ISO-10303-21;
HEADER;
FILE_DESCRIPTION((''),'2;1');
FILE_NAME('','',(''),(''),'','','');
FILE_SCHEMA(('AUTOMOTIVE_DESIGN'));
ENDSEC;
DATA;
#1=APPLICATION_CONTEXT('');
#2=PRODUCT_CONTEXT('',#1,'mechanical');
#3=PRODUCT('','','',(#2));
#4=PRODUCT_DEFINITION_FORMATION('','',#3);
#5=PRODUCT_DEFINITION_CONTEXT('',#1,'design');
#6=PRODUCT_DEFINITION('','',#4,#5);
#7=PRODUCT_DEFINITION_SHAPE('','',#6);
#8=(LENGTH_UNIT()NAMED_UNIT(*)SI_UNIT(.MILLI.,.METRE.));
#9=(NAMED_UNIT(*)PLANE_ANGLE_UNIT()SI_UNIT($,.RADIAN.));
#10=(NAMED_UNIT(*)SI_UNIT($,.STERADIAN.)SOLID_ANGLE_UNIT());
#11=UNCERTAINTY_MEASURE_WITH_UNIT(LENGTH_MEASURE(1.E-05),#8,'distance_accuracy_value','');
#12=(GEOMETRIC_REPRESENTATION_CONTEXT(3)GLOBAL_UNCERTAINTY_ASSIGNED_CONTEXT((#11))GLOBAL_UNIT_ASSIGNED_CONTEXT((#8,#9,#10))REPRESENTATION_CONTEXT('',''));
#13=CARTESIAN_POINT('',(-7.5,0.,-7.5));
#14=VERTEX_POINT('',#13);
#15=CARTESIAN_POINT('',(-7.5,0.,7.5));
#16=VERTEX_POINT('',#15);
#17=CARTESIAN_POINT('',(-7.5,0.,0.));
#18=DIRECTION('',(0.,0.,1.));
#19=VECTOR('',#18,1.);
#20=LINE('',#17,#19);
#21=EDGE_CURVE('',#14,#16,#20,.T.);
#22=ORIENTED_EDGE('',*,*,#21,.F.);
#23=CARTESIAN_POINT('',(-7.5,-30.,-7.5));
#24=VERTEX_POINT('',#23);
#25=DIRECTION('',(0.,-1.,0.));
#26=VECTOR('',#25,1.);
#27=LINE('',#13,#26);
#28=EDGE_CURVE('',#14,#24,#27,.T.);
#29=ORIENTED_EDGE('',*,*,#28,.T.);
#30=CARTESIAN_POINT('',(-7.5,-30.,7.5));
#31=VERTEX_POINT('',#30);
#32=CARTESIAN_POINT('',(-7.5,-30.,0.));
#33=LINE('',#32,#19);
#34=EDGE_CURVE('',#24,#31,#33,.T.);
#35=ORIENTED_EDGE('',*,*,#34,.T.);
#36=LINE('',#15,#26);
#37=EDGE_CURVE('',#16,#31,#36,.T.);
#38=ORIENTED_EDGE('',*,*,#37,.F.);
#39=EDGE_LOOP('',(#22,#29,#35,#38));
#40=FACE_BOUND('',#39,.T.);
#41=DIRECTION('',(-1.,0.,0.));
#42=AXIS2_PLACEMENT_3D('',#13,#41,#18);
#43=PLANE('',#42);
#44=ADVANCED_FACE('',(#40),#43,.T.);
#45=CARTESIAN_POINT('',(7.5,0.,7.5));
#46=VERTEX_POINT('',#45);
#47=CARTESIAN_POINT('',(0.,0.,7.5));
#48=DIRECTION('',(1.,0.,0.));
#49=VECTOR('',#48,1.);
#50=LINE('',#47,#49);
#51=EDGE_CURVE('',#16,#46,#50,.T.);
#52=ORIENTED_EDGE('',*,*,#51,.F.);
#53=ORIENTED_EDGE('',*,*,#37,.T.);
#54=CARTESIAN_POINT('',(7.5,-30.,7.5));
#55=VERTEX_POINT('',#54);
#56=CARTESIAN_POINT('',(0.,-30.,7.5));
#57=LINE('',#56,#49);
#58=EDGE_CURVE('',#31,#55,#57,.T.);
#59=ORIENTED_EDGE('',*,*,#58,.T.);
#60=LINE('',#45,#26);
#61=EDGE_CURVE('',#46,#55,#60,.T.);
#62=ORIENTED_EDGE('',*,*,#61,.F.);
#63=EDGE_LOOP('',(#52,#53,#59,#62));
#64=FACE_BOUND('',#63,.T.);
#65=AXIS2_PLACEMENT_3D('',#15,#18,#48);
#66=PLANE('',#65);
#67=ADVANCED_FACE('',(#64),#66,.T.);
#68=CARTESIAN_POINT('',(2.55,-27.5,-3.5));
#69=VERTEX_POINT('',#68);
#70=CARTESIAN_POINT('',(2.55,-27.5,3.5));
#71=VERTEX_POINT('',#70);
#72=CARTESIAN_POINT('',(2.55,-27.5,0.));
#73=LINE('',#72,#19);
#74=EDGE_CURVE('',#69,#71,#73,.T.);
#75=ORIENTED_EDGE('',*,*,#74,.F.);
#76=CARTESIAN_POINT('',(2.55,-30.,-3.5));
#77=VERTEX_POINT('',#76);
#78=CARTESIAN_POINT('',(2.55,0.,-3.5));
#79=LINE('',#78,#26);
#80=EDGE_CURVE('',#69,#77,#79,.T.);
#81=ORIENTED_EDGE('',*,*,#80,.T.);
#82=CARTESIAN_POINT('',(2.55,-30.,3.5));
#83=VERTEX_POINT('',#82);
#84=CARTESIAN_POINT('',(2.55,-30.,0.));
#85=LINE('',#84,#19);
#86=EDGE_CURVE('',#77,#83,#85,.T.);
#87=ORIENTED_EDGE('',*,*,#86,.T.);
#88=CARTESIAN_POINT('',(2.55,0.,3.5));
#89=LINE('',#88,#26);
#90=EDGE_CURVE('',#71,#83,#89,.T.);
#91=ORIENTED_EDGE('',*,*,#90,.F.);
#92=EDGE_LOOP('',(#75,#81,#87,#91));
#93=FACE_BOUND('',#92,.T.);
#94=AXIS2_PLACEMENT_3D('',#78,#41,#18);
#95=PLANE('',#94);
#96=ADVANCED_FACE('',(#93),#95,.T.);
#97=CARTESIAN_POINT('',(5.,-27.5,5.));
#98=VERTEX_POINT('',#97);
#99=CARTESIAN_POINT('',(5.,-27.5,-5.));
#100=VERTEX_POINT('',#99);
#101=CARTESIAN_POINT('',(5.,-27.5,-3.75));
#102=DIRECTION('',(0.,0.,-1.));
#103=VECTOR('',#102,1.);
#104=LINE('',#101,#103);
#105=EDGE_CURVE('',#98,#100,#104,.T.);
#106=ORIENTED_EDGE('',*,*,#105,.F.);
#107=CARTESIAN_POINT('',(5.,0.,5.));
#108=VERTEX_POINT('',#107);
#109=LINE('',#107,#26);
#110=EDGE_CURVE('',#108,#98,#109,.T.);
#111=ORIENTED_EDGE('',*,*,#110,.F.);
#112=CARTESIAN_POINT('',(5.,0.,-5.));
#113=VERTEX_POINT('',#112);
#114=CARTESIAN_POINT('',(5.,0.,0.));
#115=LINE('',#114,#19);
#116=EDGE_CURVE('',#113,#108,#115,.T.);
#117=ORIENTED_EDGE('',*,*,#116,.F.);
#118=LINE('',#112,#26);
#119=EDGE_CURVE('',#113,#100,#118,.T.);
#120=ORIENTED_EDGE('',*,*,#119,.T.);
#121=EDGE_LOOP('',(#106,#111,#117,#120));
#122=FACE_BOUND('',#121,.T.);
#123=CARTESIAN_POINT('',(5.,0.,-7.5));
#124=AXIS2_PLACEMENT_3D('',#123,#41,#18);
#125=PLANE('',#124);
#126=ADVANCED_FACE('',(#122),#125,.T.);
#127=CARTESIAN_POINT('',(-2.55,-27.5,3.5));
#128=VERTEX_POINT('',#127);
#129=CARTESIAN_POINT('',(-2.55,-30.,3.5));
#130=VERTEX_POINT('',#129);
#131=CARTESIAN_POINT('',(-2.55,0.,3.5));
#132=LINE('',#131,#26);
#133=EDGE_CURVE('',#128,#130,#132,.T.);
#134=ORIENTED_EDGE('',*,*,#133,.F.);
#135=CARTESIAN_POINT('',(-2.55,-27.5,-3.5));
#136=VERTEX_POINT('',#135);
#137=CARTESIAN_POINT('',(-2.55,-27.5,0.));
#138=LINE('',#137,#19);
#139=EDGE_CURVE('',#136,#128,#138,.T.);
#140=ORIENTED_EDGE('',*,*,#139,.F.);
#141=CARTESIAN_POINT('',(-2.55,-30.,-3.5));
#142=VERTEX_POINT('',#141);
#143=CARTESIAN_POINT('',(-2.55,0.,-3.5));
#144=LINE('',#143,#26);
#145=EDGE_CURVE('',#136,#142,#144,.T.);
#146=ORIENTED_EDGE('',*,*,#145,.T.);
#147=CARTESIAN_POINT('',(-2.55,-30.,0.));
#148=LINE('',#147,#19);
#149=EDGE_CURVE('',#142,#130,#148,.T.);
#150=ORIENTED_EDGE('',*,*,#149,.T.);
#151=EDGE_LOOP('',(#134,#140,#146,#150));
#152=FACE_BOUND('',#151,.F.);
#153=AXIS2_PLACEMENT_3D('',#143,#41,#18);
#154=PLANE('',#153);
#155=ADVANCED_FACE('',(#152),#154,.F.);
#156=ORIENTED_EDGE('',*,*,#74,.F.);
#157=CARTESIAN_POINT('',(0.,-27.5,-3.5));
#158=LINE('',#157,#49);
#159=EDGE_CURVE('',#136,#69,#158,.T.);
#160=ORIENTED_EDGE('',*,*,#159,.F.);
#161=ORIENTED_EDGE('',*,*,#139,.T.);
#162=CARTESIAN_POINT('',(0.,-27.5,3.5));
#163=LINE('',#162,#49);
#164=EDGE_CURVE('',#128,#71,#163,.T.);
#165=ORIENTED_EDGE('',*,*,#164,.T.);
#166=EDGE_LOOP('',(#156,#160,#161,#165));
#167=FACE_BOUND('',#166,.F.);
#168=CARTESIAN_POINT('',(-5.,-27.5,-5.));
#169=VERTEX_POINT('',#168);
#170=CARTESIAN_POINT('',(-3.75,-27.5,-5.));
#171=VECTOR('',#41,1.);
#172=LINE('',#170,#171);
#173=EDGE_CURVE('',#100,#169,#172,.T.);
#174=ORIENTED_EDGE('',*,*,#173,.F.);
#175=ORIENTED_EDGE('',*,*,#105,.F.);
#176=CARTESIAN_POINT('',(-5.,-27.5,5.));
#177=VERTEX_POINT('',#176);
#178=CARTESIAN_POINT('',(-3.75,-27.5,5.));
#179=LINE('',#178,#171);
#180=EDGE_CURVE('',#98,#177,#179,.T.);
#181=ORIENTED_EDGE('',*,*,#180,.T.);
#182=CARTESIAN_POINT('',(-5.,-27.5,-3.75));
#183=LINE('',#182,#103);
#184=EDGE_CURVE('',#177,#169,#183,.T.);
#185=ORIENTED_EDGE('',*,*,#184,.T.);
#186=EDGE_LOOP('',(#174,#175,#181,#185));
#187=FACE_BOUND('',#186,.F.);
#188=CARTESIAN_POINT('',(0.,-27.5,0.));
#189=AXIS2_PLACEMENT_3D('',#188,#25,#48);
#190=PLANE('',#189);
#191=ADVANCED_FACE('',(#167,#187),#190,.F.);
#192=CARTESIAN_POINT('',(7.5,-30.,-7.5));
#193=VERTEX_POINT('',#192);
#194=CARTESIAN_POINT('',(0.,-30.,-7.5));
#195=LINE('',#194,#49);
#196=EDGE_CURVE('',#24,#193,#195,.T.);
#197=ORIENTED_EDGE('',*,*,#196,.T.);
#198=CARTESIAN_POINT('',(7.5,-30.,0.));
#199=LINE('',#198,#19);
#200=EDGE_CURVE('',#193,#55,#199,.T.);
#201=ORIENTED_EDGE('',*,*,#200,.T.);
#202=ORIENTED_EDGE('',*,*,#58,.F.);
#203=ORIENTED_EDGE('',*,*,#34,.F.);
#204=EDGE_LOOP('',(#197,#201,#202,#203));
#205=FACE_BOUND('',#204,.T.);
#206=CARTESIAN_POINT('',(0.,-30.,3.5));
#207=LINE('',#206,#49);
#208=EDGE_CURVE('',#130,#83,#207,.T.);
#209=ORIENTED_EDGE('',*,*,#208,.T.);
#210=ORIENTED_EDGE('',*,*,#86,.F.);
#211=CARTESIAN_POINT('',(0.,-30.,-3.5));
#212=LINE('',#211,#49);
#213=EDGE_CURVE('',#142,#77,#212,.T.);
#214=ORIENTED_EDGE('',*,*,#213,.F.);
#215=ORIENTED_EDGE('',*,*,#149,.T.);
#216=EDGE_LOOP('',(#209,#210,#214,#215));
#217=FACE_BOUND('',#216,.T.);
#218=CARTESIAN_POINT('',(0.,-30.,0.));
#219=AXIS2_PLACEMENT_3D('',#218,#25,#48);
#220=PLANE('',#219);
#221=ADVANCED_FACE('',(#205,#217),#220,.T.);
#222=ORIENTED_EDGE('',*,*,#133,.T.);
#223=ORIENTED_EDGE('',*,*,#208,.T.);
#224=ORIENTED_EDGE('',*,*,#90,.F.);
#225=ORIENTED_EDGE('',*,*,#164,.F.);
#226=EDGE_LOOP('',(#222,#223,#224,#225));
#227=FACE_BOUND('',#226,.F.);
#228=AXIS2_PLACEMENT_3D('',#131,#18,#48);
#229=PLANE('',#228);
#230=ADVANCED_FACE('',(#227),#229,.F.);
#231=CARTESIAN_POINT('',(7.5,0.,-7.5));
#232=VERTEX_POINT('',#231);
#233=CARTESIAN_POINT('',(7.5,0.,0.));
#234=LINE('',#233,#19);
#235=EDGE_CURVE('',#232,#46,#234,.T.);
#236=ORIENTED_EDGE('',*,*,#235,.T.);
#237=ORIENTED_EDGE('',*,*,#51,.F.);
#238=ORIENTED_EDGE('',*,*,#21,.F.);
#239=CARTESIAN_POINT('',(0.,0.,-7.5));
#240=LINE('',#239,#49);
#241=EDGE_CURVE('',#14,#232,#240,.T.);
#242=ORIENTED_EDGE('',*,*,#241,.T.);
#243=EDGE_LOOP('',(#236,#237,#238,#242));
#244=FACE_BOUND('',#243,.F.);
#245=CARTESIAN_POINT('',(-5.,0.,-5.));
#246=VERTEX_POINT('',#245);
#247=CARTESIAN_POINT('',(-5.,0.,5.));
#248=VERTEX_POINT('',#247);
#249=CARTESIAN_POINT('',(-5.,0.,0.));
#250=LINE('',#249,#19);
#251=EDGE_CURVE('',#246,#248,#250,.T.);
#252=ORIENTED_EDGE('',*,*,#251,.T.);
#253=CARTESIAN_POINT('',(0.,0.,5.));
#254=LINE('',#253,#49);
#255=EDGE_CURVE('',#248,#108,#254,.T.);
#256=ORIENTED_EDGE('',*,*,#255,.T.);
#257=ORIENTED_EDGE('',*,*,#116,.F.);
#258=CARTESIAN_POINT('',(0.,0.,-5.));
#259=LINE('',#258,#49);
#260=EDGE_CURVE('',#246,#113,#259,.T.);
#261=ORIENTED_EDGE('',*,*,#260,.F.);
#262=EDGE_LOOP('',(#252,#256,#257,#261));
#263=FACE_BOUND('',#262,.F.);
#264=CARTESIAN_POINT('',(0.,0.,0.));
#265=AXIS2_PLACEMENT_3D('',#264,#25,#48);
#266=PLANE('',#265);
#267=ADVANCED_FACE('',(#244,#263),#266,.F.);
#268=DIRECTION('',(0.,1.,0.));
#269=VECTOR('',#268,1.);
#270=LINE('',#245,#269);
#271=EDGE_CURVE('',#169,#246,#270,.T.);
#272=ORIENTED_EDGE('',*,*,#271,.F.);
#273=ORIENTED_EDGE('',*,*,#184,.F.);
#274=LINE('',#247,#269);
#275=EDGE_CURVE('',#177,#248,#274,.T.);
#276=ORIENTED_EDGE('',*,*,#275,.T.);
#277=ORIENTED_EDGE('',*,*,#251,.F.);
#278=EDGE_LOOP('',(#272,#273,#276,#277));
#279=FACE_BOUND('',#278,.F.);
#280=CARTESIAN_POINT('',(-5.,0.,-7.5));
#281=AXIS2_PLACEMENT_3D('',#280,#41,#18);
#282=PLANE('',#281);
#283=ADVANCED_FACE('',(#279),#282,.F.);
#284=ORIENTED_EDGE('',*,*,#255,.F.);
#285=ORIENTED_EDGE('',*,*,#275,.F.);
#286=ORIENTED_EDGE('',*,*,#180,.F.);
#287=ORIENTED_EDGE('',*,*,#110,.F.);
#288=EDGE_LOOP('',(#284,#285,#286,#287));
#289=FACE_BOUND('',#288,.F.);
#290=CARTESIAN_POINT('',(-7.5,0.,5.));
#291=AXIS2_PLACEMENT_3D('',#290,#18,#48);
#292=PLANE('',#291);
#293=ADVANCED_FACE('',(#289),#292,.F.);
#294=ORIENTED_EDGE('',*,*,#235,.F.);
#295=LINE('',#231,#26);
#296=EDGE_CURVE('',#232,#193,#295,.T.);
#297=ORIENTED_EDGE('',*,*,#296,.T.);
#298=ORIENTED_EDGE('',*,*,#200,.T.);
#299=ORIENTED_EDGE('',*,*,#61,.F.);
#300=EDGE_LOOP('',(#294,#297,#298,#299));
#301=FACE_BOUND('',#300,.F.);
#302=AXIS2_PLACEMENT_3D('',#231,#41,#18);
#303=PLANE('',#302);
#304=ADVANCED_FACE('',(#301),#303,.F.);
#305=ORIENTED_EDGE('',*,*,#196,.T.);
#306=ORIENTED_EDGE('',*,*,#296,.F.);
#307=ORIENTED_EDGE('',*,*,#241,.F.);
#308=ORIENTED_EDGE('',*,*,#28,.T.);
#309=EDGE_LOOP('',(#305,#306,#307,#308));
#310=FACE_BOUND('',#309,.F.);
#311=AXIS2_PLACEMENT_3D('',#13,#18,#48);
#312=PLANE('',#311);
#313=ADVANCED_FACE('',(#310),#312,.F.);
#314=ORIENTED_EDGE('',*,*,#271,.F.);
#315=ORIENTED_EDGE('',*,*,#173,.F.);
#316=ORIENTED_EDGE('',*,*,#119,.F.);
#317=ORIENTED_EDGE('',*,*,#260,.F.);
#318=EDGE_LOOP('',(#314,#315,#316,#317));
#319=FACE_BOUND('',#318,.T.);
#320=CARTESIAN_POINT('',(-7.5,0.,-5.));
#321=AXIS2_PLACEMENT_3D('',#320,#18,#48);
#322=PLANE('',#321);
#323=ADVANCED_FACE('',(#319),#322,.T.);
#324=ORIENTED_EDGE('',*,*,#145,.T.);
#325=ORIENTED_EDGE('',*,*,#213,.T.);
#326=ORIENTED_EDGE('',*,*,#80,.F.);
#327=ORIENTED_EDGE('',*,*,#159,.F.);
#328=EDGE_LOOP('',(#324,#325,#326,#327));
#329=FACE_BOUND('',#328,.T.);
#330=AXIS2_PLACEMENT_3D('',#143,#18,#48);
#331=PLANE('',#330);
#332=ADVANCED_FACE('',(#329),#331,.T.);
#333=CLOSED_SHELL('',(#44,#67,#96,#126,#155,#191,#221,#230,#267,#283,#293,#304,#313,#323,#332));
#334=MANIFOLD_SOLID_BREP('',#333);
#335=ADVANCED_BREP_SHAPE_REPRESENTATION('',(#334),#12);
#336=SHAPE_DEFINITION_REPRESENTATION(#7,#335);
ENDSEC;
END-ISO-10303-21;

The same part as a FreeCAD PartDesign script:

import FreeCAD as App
import Part
import Sketcher


def faces_at(feature, points):
    """Names of the faces that lie closest to the given points."""
    faces = feature.Shape.Faces
    near = lambda p: min(range(len(faces)), key=lambda i: faces[i].distToShape(Part.Vertex(*p))[0])
    return sorted({f"Face{near(p) + 1}" for p in points})

doc = App.newDocument("Part")
body = doc.addObject("PartDesign::Body", "Body")

sketch1 = body.newObject("Sketcher::SketchObject", "Sketch")
sketch1.AttachmentSupport = (doc.getObject("XZ_Plane"), [""])
sketch1.MapMode = "FlatFace"
sketch1.addGeometry([
    Part.LineSegment(App.Vector(-8, 8, 0), App.Vector(-8, -8, 0)),
    Part.LineSegment(App.Vector(-8, -8, 0), App.Vector(8, -8, 0)),
    Part.LineSegment(App.Vector(8, -8, 0), App.Vector(8, 8, 0)),
    Part.LineSegment(App.Vector(8, 8, 0), App.Vector(-8, 8, 0)),
    Part.LineSegment(App.Vector(3, -4, 0), App.Vector(-3, -4, 0)),
    Part.LineSegment(App.Vector(-3, -4, 0), App.Vector(-3, 4, 0)),
    Part.LineSegment(App.Vector(-3, 4, 0), App.Vector(3, 4, 0)),
    Part.LineSegment(App.Vector(3, 4, 0), App.Vector(3, -4, 0)),
], False)
sketch1.addConstraint([
    Sketcher.Constraint("Coincident", 0, 2, 1, 1),
    Sketcher.Constraint("Coincident", 1, 2, 2, 1),
    Sketcher.Constraint("Coincident", 2, 2, 3, 1),
    Sketcher.Constraint("Coincident", 3, 2, 0, 1),
    Sketcher.Constraint("Coincident", 4, 2, 5, 1),
    Sketcher.Constraint("Coincident", 5, 2, 6, 1),
    Sketcher.Constraint("Coincident", 6, 2, 7, 1),
    Sketcher.Constraint("Coincident", 7, 2, 4, 1),
    Sketcher.Constraint("Vertical", 0),
    Sketcher.Constraint("Horizontal", 1),
    Sketcher.Constraint("Vertical", 2),
    Sketcher.Constraint("Horizontal", 3),
    Sketcher.Constraint("Horizontal", 4),
    Sketcher.Constraint("Vertical", 5),
    Sketcher.Constraint("Horizontal", 6),
    Sketcher.Constraint("Vertical", 7),
    Sketcher.Constraint("Symmetric", 0, 2, 2, 2, -1, 1),
    Sketcher.Constraint("Symmetric", 4, 2, 6, 2, -1, 1),
    Sketcher.Constraint("Equal", 3, 0),
    Sketcher.Constraint("DistanceX", 1, 1, 1, 2, 15.0),
    Sketcher.Constraint("DistanceY", 5, 1, 5, 2, 7.0),
    Sketcher.Constraint("DistanceX", 4, 2, 4, 1, 5.1),
])
pad1 = body.newObject("PartDesign::Pad", "Pad")
pad1.Profile = sketch1
pad1.Length = 30
doc.recompute()

thickness = body.newObject("PartDesign::Thickness", "Thickness")
thickness.Base = (pad1, faces_at(pad1, [
    (-3, 0, -3),
    (0, -15, -3.5),
    (2.55, -15, 0),
    (-2.55, -15, 0),
    (0, -15, 3.5),
]))
thickness.Value = 2.5
thickness.Reversed = True
thickness.Join = "Arc"

doc.recompute()
